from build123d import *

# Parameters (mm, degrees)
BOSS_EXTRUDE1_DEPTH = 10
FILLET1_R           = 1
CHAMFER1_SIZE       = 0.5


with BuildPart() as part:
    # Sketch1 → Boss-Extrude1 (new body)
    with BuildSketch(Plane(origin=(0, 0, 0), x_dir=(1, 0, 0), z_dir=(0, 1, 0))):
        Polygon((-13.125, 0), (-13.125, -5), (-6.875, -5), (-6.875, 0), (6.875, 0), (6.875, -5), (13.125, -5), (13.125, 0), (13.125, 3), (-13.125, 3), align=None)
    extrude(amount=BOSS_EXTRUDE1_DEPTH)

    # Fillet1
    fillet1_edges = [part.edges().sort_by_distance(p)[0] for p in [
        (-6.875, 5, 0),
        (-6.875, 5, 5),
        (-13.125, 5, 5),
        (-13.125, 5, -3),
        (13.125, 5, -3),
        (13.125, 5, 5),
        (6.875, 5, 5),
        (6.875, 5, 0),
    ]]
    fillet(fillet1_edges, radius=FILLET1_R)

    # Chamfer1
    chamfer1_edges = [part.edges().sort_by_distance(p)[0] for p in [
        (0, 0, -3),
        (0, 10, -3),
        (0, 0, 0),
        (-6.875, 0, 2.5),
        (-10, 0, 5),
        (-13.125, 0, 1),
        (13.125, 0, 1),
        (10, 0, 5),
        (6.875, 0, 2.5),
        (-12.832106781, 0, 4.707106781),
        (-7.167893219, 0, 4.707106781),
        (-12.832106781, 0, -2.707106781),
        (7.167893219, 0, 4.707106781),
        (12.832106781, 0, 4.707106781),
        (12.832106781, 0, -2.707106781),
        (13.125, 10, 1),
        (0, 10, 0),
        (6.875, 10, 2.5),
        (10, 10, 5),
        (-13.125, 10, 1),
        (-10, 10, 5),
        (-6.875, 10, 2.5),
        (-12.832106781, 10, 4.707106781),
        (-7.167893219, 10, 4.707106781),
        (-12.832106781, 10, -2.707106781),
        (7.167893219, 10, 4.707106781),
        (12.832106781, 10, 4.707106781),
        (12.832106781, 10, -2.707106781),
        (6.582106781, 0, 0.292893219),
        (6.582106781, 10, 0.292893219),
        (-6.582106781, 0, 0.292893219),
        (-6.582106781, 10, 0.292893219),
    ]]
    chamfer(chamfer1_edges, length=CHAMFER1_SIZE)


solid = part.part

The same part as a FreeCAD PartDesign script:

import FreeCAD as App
import Part
import Sketcher

V = App.Vector
Q = App.Units.Quantity


def edges_at(feature, points):
    """Names of the edges that pass closest to the given points."""
    edges = feature.Shape.Edges
    near = lambda p: min(range(len(edges)), key=lambda i: edges[i].distToShape(Part.Vertex(*p))[0])
    return sorted({f"Edge{near(p) + 1}" for p in points})


def add_polygon(sketch, points):
    """Adds a closed chain of lines whose ends are joined by coincident constraints."""
    first, n = sketch.GeometryCount, len(points)
    for a, b in zip(points, points[1:] + points[:1]):
        sketch.addGeometry(Part.LineSegment(App.Vector(*a, 0), App.Vector(*b, 0)), False)
    for i in range(n):
        sketch.addConstraint(Sketcher.Constraint("Coincident", first + i, 2, first + (i + 1) % n, 1))

doc = App.newDocument("Part")
params = doc.addObject("Spreadsheet::Sheet", "Params")
for row, (alias, value) in enumerate([
    ("sketch1_height", "5 mm"),
    ("sketch1_height2", "8 mm"),
    ("sketch1_width", "6.25 mm"),
    ("pad1_length", "10 mm"),
    ("fillet_radius", "1 mm"),
    ("chamfer_size", "0.5 mm"),
], start=1):
    params.set(f"A{row}", alias)
    params.set(f"B{row}", "=" + value)
    params.setAlias(f"B{row}", alias)

body = doc.addObject("PartDesign::Body", "Body")

sketch1 = body.newObject("Sketcher::SketchObject", "Sketch")
sketch1.AttachmentSupport = (doc.getObject("XZ_Plane"), [""])
sketch1.MapMode = "FlatFace"
add_polygon(sketch1, [(-13.125, 5), (-6.875, 5), (-6.875, 0), (6.875, 0), (6.875, 5), (13.125, 5), (13.125, -3), (-13.125, -3)])
sketch1.addConstraint([
    Sketcher.Constraint("Horizontal", 0),
    Sketcher.Constraint("Vertical", 1),
    Sketcher.Constraint("Horizontal", 2),
    Sketcher.Constraint("Vertical", 3),
    Sketcher.Constraint("Horizontal", 4),
    Sketcher.Constraint("Vertical", 5),
    Sketcher.Constraint("Horizontal", 6),
    Sketcher.Constraint("Vertical", 7),
    Sketcher.Constraint("Symmetric", 1, 2, 2, 2, -1, 1),
    Sketcher.Constraint("Symmetric", 4, 2, 7, 2, -2),
    Sketcher.Constraint("DistanceY", 1, 2, 1, 1, Q("5 mm")),
    Sketcher.Constraint("DistanceY", 5, 2, 5, 1, Q("8 mm")),
    Sketcher.Constraint("DistanceX", 0, 2, 4, 2, Q("20 mm")),
    Sketcher.Constraint("DistanceX", 0, 1, 0, 2, Q("6.25 mm")),
])
sketch1.setExpression("Constraints[18]", "Params.sketch1_height")
sketch1.setExpression("Constraints[19]", "Params.sketch1_height2")
sketch1.setExpression("Constraints[21]", "Params.sketch1_width")
pad1 = body.newObject("PartDesign::Pad", "Pad")
pad1.Profile = sketch1
pad1.setExpression("Length", "Params.pad1_length")
pad1.Reversed = True
doc.recompute()

fillet = body.newObject("PartDesign::Fillet", "Fillet")
fillet.Base = (pad1, edges_at(pad1, [
    (-6.875, 5, 0),
    (-6.875, 5, 5),
    (-13.125, 5, 5),
    (-13.125, 5, -3),
    (13.125, 5, -3),
    (13.125, 5, 5),
    (6.875, 5, 5),
    (6.875, 5, 0),
]))
fillet.setExpression("Radius", "Params.fillet_radius")
doc.recompute()

chamfer = body.newObject("PartDesign::Chamfer", "Chamfer")
chamfer.Base = (fillet, edges_at(fillet, [
    (0, 0, -3),
    (0, 10, -3),
    (0, 0, 0),
    (-6.875, 0, 2.5),
    (-10, 0, 5),
    (-13.125, 0, 1),
    (13.125, 0, 1),
    (10, 0, 5),
    (6.875, 0, 2.5),
    (-12.832, 0, 4.707),
    (-7.168, 0, 4.707),
    (-12.832, 0, -2.707),
    (7.168, 0, 4.707),
    (12.832, 0, 4.707),
    (12.832, 0, -2.707),
    (13.125, 10, 1),
    (0, 10, 0),
    (6.875, 10, 2.5),
    (10, 10, 5),
    (-13.125, 10, 1),
    (-10, 10, 5),
    (-6.875, 10, 2.5),
    (-12.832, 10, 4.707),
    (-7.168, 10, 4.707),
    (-12.832, 10, -2.707),
    (7.168, 10, 4.707),
    (12.832, 10, 4.707),
    (12.832, 10, -2.707),
    (6.582, 0, 0.293),
    (6.582, 10, 0.293),
    (-6.582, 0, 0.293),
    (-6.582, 10, 0.293),
]))
chamfer.setExpression("Size", "Params.chamfer_size")

doc.recompute()
